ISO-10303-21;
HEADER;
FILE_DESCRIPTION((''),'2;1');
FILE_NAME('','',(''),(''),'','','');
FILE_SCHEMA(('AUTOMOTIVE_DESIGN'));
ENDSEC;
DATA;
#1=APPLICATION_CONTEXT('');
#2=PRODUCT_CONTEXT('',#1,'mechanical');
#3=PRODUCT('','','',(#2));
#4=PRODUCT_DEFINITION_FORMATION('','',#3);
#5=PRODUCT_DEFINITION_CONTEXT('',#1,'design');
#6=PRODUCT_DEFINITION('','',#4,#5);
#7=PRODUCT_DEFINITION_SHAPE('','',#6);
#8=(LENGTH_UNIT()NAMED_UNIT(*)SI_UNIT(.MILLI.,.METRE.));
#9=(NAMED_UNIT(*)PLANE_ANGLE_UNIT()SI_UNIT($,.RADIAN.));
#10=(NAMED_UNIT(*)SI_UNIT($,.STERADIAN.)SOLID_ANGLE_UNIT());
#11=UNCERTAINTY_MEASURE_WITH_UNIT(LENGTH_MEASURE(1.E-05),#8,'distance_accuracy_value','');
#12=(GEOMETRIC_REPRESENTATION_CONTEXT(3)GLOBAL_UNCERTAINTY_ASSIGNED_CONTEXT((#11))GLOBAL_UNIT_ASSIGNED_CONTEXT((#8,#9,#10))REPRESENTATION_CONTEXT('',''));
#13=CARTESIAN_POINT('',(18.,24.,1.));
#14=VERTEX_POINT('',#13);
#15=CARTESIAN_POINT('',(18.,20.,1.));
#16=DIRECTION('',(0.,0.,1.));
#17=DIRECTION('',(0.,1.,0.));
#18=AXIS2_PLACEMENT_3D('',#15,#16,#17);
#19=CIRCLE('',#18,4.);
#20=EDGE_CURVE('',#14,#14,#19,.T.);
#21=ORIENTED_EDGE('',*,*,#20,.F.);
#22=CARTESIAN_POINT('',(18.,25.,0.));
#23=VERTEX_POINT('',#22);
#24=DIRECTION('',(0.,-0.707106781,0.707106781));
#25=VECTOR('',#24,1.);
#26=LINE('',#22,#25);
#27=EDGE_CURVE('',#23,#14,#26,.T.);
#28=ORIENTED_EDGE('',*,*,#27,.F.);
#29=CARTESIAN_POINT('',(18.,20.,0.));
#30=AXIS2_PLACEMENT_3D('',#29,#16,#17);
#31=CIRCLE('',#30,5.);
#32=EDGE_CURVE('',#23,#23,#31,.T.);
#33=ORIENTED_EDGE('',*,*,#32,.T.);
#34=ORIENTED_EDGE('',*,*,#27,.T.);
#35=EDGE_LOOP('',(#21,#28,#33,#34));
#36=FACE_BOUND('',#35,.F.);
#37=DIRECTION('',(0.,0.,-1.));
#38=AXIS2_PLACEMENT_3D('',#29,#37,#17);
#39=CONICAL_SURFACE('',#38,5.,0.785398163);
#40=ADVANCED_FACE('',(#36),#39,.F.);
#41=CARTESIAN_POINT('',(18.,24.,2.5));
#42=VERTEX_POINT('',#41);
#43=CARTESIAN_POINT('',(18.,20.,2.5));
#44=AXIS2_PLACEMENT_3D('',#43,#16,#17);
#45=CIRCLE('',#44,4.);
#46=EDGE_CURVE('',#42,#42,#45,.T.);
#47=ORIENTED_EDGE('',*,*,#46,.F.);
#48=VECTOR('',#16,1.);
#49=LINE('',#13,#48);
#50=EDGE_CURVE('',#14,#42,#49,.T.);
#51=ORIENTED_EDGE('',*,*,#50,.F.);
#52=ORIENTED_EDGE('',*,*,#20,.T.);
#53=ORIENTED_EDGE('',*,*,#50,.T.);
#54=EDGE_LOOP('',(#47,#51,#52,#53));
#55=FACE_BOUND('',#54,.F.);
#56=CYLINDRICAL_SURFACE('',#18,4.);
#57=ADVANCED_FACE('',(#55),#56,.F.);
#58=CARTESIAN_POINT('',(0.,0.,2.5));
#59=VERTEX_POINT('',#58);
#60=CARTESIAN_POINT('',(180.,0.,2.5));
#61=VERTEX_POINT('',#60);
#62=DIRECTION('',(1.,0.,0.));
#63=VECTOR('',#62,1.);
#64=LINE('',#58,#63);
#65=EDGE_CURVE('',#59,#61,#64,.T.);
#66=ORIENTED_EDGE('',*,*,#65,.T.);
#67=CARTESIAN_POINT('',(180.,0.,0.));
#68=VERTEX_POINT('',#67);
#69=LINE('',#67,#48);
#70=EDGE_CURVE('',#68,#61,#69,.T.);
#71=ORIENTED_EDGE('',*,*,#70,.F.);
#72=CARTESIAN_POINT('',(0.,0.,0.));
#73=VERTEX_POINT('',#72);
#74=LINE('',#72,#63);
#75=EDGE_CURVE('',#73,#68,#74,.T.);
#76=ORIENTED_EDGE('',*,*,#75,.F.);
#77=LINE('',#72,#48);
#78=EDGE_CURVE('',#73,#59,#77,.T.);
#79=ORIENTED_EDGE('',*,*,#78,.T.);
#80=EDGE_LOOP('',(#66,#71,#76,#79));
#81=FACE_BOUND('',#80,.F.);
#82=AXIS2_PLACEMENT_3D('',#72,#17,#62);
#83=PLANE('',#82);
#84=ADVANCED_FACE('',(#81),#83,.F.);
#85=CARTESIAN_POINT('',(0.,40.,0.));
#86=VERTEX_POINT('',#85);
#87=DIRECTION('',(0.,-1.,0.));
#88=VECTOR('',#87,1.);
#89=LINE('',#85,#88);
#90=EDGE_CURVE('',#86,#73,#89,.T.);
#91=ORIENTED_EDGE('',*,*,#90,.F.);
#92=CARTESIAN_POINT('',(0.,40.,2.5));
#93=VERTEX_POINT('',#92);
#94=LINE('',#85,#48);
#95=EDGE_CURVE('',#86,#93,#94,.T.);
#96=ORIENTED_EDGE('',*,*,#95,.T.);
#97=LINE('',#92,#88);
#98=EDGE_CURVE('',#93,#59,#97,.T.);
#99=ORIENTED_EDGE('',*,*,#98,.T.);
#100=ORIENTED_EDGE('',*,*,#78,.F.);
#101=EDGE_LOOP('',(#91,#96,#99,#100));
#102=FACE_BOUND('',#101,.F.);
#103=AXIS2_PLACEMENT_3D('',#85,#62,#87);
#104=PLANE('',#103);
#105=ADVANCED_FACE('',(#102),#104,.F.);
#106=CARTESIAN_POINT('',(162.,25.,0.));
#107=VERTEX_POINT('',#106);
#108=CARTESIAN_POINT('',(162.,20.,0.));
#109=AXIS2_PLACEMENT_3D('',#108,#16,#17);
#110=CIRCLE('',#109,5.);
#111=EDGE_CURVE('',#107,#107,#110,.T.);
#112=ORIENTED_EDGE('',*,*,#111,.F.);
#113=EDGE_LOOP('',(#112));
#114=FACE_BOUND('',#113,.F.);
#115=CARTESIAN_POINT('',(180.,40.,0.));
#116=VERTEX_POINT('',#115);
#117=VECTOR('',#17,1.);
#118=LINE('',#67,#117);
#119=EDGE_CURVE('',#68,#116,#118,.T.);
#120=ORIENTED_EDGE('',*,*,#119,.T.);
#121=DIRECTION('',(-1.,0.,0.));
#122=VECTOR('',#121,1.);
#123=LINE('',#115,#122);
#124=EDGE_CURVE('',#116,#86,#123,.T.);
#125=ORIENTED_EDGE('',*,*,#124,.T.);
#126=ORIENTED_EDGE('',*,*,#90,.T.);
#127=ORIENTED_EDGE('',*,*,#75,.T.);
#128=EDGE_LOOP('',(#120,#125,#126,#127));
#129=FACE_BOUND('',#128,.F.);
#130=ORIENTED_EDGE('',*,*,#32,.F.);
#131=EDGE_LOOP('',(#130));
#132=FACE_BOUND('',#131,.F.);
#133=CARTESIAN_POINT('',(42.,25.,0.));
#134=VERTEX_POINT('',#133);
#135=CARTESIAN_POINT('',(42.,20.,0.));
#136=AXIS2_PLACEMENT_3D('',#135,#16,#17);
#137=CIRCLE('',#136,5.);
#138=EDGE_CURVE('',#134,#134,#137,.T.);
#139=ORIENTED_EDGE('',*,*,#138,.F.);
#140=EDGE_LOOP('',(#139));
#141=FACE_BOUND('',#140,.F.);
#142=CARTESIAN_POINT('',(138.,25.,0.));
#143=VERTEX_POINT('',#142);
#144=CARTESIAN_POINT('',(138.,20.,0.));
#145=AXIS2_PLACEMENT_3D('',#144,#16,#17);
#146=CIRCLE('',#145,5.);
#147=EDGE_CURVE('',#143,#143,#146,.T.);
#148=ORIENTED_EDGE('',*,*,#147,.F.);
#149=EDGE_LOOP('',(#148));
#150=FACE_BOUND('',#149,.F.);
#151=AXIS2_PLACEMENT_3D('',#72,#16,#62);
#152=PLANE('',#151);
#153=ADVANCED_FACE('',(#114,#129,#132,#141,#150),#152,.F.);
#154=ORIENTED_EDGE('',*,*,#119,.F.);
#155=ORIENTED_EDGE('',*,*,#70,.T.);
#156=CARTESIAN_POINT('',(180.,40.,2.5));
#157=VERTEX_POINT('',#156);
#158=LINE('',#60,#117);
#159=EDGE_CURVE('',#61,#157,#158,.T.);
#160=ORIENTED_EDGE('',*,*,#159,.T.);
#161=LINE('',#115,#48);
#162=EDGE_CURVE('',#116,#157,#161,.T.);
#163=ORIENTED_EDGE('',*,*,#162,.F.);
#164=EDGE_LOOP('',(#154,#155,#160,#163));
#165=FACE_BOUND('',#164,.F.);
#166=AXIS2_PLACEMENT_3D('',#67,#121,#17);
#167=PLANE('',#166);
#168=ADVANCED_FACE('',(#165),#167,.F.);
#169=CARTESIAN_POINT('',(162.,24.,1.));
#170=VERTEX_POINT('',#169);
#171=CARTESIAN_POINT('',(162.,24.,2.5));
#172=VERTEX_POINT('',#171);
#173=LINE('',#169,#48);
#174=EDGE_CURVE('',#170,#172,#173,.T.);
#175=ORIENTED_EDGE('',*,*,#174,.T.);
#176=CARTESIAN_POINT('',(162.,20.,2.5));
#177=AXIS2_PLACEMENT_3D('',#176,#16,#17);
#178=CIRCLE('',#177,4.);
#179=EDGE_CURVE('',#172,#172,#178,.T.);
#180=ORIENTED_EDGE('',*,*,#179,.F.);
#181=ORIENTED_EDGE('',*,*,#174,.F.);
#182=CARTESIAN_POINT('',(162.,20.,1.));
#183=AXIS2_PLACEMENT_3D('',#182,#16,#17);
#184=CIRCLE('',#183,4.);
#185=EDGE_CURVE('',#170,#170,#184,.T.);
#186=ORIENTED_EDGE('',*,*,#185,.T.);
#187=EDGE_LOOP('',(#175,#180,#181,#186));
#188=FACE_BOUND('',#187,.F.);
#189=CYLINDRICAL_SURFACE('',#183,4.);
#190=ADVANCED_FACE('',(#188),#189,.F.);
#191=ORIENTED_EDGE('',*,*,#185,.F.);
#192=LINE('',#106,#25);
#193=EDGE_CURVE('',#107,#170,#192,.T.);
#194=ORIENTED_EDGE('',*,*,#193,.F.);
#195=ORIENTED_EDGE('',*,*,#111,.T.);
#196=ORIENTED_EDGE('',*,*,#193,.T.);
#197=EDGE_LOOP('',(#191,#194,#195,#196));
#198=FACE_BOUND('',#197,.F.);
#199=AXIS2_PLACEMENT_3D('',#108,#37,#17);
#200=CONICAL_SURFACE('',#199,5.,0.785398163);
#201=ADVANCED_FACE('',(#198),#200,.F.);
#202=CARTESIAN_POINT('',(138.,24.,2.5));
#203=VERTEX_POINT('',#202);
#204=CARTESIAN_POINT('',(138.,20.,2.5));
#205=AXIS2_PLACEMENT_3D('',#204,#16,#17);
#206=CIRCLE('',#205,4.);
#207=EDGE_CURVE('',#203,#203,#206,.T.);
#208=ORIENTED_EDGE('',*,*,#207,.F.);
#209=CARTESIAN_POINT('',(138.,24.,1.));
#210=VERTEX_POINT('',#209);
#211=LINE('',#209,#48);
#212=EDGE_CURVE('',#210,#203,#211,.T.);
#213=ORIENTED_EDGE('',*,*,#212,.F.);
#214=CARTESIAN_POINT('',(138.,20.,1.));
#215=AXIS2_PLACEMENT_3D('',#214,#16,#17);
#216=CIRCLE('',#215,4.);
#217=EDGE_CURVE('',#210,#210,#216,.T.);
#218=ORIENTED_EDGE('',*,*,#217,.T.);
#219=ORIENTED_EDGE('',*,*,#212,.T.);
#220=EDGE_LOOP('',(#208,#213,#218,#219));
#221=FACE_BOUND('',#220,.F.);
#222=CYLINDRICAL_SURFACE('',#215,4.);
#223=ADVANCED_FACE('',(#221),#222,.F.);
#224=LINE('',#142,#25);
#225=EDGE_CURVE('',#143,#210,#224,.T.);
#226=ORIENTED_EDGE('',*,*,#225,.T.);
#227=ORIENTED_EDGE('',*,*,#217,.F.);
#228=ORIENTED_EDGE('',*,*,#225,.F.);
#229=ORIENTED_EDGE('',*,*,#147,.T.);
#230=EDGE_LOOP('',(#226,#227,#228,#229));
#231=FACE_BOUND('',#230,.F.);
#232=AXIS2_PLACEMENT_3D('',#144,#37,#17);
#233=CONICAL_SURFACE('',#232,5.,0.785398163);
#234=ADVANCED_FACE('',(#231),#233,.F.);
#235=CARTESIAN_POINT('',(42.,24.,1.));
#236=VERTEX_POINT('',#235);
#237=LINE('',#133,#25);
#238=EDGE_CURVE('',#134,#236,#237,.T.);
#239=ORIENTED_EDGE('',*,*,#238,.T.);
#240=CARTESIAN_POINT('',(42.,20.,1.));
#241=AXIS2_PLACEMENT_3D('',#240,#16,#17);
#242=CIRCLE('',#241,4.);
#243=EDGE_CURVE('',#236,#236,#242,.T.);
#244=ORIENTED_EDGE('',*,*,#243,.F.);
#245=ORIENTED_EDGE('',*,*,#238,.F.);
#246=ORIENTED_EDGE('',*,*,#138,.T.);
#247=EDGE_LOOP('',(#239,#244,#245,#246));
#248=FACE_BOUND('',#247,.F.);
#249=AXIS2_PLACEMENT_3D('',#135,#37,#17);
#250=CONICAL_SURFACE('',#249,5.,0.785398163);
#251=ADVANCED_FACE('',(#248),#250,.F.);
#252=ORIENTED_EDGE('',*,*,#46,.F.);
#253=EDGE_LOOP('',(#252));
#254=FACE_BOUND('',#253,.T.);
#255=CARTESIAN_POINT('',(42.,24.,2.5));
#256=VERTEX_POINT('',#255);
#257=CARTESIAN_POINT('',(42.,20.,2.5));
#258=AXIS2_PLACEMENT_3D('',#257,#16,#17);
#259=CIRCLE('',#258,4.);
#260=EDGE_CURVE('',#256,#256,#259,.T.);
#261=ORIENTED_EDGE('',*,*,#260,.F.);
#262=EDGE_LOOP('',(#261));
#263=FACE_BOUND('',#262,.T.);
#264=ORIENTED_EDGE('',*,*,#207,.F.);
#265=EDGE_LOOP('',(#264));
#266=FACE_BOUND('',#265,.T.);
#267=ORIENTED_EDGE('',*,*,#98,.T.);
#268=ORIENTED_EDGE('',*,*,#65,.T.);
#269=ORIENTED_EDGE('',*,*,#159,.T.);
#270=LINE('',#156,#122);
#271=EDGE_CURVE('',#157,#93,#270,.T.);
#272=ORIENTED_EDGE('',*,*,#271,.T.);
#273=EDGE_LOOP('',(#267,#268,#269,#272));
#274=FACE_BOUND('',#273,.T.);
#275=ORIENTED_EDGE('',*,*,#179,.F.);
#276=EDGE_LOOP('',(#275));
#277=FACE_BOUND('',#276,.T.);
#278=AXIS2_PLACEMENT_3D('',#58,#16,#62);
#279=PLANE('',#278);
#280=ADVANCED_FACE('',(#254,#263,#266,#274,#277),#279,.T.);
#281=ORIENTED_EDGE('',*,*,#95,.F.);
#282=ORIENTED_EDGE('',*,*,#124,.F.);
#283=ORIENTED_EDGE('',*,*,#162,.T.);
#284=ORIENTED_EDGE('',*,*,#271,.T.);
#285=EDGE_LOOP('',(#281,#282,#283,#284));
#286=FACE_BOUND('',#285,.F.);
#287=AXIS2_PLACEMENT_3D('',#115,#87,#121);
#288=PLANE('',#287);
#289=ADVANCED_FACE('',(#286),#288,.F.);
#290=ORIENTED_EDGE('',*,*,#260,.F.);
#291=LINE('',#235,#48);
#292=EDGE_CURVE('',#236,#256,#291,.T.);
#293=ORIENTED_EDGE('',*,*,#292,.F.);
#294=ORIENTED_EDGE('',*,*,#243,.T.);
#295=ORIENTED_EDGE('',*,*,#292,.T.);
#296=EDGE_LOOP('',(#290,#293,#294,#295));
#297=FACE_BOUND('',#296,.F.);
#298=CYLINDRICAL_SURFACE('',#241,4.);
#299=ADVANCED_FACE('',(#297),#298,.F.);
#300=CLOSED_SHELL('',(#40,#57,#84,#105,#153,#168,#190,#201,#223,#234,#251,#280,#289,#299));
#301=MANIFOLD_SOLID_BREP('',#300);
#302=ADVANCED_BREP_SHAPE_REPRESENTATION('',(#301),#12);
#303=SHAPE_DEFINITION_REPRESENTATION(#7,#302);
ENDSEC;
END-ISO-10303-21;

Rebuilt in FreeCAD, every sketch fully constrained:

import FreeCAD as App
import Part
import Sketcher

V = App.Vector
Q = App.Units.Quantity


def add_polygon(sketch, points):
    """Adds a closed chain of lines whose ends are joined by coincident constraints."""
    first, n = sketch.GeometryCount, len(points)
    for a, b in zip(points, points[1:] + points[:1]):
        sketch.addGeometry(Part.LineSegment(App.Vector(*a, 0), App.Vector(*b, 0)), False)
    for i in range(n):
        sketch.addConstraint(Sketcher.Constraint("Coincident", first + i, 2, first + (i + 1) % n, 1))

doc = App.newDocument("Part")
body = doc.addObject("PartDesign::Body", "Body")

# Sketch on XY plane
sketch1 = body.newObject("Sketcher::SketchObject", "Sketch")
sketch1.AttachmentSupport = (doc.getObject("XY_Plane"), [""])
sketch1.MapMode = "FlatFace"
add_polygon(sketch1, [(0, 40), (0, 0), (180, 0), (180, 40)])  # lines 0-3
sketch1.addConstraint([
    Sketcher.Constraint("Vertical", 0),
    Sketcher.Constraint("Horizontal", 1),
    Sketcher.Constraint("Vertical", 2),
    Sketcher.Constraint("Horizontal", 3),
    Sketcher.Constraint("Coincident", 0, 2, -1, 1),
    Sketcher.Constraint("DistanceX", 1, 1, 1, 2, Q("180 mm")),
    Sketcher.Constraint("DistanceY", 0, 2, 0, 1, Q("40 mm")),
])
pad1 = body.newObject("PartDesign::Pad", "Pad")
pad1.Profile = sketch1
pad1.Length = 2.5

# Sketch on XY plane
sketch2 = body.newObject("Sketcher::SketchObject", "Sketch001")
sketch2.AttachmentSupport = (doc.getObject("XY_Plane"), [""])
sketch2.MapMode = "FlatFace"
sketch2.addGeometry([
    Part.Circle(V(18, 20, 0), V(0, 0, 1), 4),
    Part.Circle(V(42, 20, 0), V(0, 0, 1), 4),
    Part.Circle(V(138, 20, 0), V(0, 0, 1), 4),
    Part.Circle(V(162, 20, 0), V(0, 0, 1), 4),
], False)
sketch2.addConstraint([
    Sketcher.Constraint("Equal", 0, 1),
    Sketcher.Constraint("Equal", 1, 2),
    Sketcher.Constraint("Equal", 2, 3),
    Sketcher.Constraint("Horizontal", 0, 3, 1, 3),
    Sketcher.Constraint("Horizontal", 1, 3, 2, 3),
    Sketcher.Constraint("Horizontal", 2, 3, 3, 3),
    Sketcher.Constraint("Diameter", 0, Q("8 mm")),
    Sketcher.Constraint("DistanceX", -1, 1, 0, 3, Q("18 mm")),
    Sketcher.Constraint("DistanceY", -1, 1, 0, 3, Q("20 mm")),
    Sketcher.Constraint("DistanceX", -1, 1, 1, 3, Q("42 mm")),
    Sketcher.Constraint("DistanceX", -1, 1, 2, 3, Q("138 mm")),
    Sketcher.Constraint("DistanceX", -1, 1, 3, 3, Q("162 mm")),
])
doc.recompute()
hole = body.newObject("PartDesign::Hole", "Hole")
hole.Profile = sketch2
hole.ThreadType = "None"
hole.Diameter = 8
hole.DepthType = "ThroughAll"
hole.HoleCutType = "Countersink"
hole.HoleCutDiameter = 10
hole.HoleCutCountersinkAngle = 90
hole.Reversed = True

doc.recompute()
